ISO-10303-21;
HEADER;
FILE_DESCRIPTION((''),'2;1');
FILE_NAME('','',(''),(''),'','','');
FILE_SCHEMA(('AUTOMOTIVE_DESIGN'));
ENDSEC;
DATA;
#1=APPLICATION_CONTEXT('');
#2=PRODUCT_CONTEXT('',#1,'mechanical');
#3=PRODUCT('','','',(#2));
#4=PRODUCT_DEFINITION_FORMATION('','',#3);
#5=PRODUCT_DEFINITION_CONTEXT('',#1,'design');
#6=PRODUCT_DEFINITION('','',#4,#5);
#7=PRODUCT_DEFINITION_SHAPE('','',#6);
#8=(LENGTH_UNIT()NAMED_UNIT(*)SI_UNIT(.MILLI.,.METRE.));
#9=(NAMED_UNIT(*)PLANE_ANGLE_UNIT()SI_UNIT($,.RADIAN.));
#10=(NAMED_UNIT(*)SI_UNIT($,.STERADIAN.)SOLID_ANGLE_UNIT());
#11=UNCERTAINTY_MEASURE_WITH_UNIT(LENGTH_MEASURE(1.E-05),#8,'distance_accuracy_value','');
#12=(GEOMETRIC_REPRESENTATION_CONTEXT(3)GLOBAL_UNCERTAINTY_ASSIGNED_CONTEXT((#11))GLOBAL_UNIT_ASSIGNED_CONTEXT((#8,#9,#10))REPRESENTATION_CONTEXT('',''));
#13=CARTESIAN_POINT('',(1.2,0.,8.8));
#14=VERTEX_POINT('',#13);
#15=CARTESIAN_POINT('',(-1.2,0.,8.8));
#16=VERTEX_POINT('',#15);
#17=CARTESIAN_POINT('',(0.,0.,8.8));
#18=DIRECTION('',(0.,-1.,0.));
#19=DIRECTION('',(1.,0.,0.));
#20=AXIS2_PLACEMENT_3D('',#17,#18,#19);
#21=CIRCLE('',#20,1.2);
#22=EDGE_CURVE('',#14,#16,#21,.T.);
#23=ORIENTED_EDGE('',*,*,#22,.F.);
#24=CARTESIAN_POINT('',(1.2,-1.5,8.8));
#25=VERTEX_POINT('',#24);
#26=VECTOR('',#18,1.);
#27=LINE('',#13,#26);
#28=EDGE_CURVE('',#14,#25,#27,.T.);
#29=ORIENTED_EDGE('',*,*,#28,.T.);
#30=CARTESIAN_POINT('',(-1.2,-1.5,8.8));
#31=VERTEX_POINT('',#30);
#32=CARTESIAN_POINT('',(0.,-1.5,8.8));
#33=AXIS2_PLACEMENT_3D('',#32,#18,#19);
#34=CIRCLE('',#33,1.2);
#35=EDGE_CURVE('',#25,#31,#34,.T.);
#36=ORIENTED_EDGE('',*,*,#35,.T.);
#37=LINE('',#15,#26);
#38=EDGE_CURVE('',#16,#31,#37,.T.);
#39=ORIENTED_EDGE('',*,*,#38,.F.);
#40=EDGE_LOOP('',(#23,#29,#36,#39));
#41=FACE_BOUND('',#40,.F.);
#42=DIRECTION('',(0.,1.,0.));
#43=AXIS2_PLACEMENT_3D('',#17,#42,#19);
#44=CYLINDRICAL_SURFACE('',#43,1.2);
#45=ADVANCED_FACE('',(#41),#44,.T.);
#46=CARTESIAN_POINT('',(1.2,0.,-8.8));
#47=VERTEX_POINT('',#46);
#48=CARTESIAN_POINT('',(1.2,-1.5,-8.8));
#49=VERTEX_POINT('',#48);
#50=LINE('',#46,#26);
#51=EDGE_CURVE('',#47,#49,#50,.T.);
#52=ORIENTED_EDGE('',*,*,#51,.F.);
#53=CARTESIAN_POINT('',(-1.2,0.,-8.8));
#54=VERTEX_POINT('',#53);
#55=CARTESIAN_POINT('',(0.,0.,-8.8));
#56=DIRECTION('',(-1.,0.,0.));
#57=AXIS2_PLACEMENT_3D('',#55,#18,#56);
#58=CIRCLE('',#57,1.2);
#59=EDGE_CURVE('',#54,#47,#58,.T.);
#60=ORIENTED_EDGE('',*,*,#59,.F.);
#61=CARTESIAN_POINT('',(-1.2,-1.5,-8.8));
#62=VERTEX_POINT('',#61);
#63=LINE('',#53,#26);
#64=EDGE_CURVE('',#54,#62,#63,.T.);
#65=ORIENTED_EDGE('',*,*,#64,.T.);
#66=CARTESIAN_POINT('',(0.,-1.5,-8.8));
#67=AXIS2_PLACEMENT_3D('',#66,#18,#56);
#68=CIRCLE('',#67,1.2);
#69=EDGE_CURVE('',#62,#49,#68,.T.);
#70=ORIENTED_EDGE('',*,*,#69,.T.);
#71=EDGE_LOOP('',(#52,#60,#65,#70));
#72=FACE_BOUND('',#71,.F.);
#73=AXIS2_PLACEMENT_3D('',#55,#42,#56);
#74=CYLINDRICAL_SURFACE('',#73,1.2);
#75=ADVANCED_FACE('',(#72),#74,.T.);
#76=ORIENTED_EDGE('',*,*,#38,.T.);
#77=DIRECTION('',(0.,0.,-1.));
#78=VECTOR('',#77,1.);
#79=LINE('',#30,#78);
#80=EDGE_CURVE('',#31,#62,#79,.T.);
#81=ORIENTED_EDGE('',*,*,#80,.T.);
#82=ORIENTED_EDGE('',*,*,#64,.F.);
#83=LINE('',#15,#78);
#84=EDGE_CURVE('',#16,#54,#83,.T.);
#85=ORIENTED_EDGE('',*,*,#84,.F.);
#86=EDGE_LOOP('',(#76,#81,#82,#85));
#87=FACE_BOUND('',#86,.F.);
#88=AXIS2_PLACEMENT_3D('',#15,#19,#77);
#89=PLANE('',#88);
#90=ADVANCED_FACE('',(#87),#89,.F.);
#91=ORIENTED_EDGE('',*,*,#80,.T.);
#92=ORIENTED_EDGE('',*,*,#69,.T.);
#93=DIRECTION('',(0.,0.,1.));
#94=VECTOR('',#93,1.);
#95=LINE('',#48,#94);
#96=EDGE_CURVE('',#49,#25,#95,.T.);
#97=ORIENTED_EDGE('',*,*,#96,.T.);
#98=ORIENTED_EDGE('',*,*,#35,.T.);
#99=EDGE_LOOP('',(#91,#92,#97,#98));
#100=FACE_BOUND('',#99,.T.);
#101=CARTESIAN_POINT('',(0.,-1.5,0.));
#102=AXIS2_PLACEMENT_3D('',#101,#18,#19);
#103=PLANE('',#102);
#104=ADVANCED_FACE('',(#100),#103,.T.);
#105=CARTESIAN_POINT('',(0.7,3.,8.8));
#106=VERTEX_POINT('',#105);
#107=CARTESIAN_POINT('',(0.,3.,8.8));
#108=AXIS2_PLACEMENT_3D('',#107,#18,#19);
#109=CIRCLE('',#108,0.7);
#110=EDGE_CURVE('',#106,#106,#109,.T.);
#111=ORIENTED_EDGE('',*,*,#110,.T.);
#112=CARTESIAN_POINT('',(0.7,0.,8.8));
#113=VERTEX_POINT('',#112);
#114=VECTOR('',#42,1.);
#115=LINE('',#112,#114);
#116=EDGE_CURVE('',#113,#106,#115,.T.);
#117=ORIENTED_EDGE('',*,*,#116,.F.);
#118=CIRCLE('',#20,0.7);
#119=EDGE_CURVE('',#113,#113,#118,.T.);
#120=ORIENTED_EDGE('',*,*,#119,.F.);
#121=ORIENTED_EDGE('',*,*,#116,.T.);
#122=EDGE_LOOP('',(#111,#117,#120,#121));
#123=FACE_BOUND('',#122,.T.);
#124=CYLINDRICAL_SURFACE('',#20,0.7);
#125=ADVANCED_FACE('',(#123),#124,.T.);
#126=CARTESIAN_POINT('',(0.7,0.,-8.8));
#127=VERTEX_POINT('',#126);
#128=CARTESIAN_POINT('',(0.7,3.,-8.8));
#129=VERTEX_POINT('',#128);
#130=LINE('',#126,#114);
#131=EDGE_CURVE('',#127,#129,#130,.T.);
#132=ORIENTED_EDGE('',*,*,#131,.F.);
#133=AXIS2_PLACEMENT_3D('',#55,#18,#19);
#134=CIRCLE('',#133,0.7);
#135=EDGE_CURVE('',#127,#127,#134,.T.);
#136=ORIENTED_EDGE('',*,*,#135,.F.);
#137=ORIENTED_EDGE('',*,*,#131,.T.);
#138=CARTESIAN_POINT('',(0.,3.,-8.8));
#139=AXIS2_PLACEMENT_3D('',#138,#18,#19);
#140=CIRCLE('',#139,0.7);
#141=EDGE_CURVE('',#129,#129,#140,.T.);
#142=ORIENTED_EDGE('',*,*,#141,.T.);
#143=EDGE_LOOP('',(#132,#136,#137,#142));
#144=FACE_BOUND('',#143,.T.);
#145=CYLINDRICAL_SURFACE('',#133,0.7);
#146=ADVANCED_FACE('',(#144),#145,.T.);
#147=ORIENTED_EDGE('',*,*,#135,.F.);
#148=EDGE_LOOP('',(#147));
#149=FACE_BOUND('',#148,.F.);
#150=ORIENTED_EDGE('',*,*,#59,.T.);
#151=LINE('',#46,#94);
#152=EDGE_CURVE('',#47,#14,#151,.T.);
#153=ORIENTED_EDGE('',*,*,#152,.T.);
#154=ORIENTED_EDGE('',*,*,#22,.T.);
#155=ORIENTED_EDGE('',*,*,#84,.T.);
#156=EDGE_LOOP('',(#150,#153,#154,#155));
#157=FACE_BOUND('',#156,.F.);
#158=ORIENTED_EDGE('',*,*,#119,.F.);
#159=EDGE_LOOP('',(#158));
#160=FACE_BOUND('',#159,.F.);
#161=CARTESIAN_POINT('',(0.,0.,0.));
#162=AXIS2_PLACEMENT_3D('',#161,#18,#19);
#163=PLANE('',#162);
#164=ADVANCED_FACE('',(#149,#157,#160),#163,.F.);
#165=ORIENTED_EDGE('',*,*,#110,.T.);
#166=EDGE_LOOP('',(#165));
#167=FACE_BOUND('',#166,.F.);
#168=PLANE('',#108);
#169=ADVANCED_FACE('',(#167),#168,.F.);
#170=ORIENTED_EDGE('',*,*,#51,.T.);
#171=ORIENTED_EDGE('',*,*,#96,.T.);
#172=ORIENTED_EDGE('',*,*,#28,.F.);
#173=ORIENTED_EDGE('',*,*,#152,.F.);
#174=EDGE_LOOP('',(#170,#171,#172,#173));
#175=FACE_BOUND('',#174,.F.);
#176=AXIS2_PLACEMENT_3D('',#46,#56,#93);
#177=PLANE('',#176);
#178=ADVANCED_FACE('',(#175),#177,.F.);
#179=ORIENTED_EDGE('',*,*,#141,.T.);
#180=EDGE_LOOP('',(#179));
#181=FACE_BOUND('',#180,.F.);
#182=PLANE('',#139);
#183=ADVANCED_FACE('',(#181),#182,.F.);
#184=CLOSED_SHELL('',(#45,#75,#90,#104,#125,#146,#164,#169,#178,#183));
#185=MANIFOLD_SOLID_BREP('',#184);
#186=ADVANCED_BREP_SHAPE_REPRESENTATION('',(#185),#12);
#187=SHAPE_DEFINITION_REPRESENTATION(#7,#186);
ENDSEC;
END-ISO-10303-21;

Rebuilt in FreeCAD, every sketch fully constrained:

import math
import FreeCAD as App
import Part
import Sketcher

V = App.Vector

doc = App.newDocument("Part")
body = doc.addObject("PartDesign::Body", "Body")

# Sketch on XZ plane
sketch1 = doc.addObject("Sketcher::SketchObject", "Sketch")
body.addObject(sketch1)
sketch1.AttachmentSupport = (doc.XZ_Plane, [""])
sketch1.MapMode = "FlatFace"
sketch1.addGeometry([
    Part.LineSegment(V(1.2, -8.8, 0), V(1.2, 8.8, 0)),
    Part.ArcOfCircle(Part.Circle(V(0, 8.8, 0), V(0, 0, 1), 1.2), math.radians(0), math.radians(180)),
    Part.LineSegment(V(-1.2, 8.8, 0), V(-1.2, -8.8, 0)),
    Part.ArcOfCircle(Part.Circle(V(0, -8.8, 0), V(0, 0, 1), 1.2), math.radians(180), math.radians(360)),
], False)
sketch1.addConstraint([
    Sketcher.Constraint("Tangent", 0, 2, 1, 1),
    Sketcher.Constraint("Tangent", 1, 2, 2, 1),
    Sketcher.Constraint("Tangent", 2, 2, 3, 1),
    Sketcher.Constraint("Tangent", 3, 2, 0, 1),
    Sketcher.Constraint("Vertical", 0),
    Sketcher.Constraint("Vertical", 2),
    Sketcher.Constraint("Symmetric", 1, 3, 3, 3, -1, 1),
    Sketcher.Constraint("Radius", 1, 1.2),
    Sketcher.Constraint("DistanceY", 0, 1, 0, 2, 17.6),
])
pad1 = doc.addObject("PartDesign::Pad", "Pad")
body.addObject(pad1)
pad1.Profile = sketch1
pad1.Length = 1.5

# Sketch on XZ plane
sketch2 = doc.addObject("Sketcher::SketchObject", "Sketch001")
body.addObject(sketch2)
sketch2.AttachmentSupport = (doc.XZ_Plane, [""])
sketch2.MapMode = "FlatFace"
sketch2.addGeometry([
    Part.Circle(V(0, -8.8, 0), V(0, 0, 1), 0.7),
    Part.Circle(V(0, 8.8, 0), V(0, 0, 1), 0.7),
], False)
sketch2.addConstraint([
    Sketcher.Constraint("Equal", 0, 1),
    Sketcher.Constraint("Symmetric", 0, 3, 1, 3, -1, 1),
    Sketcher.Constraint("PointOnObject", 0, 3, -2),
    Sketcher.Constraint("Diameter", 0, 1.4),
    Sketcher.Constraint("DistanceY", 0, 3, -1, 1, 8.8),
])
pad2 = doc.addObject("PartDesign::Pad", "Pad001")
body.addObject(pad2)
pad2.Profile = sketch2
pad2.Length = 3
pad2.Reversed = True

doc.recompute()
